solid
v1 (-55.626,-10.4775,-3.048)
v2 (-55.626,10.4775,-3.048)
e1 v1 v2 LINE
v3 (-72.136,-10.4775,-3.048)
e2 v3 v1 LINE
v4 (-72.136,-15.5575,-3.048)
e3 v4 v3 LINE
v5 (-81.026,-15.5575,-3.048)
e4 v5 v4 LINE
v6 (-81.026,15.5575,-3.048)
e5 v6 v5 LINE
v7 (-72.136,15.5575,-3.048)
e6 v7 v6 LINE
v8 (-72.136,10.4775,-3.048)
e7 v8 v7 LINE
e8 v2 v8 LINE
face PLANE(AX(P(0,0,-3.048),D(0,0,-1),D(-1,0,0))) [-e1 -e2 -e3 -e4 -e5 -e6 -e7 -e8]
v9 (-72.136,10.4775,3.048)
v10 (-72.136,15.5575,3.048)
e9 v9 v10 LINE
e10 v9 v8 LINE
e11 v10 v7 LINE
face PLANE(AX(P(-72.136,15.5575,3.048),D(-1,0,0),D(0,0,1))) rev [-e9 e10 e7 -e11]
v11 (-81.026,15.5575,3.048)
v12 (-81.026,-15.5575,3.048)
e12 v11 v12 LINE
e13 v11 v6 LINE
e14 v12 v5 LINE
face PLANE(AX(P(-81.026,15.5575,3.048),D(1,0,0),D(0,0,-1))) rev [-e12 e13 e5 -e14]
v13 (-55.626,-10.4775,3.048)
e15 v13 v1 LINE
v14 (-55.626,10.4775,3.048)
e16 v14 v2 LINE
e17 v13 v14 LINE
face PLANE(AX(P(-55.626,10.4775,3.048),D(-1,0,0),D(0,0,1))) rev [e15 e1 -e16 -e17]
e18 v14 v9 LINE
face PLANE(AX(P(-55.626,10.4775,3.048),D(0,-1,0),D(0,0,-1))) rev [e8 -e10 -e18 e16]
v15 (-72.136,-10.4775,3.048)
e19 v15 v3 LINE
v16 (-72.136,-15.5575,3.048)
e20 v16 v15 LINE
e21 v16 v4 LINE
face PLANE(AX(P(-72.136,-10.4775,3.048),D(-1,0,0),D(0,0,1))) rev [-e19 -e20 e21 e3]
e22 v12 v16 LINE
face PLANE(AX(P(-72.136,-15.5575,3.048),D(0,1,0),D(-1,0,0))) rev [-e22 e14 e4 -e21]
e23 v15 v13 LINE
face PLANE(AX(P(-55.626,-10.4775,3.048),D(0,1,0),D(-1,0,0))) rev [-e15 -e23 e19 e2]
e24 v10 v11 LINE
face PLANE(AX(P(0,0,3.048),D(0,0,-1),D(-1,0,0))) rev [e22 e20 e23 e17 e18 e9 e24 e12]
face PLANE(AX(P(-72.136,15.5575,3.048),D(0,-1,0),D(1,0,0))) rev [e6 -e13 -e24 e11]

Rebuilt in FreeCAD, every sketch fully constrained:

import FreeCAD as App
import Part
import Sketcher
Q = App.Units.Quantity

doc = App.newDocument("Part")
body = doc.addObject("PartDesign::Body", "Body")

# Sketch on XY plane
sketch1 = body.newObject("Sketcher::SketchObject", "Sketch")
sketch1.AttachmentSupport = (doc.getObject("XY_Plane"), [""])
sketch1.MapMode = "FlatFace"
sketch1.addGeometry([
    Part.LineSegment(App.Vector(-56, 10, 0), App.Vector(-72, 10, 0)),  # 0
    Part.LineSegment(App.Vector(-72, 10, 0), App.Vector(-72, 16, 0)),  # 1
    Part.LineSegment(App.Vector(-72, 16, 0), App.Vector(-81, 16, 0)),  # 2
    Part.LineSegment(App.Vector(-81, 16, 0), App.Vector(-81, -16, 0)),  # 3
    Part.LineSegment(App.Vector(-81, -16, 0), App.Vector(-72, -16, 0)),  # 4
    Part.LineSegment(App.Vector(-72, -16, 0), App.Vector(-72, -10, 0)),  # 5
    Part.LineSegment(App.Vector(-72, -10, 0), App.Vector(-56, -10, 0)),  # 6
    Part.LineSegment(App.Vector(-56, -10, 0), App.Vector(-56, 10, 0)),  # 7
], False)
sketch1.addConstraint([
    Sketcher.Constraint("Coincident", 0, 2, 1, 1),
    Sketcher.Constraint("Coincident", 1, 2, 2, 1),
    Sketcher.Constraint("Coincident", 2, 2, 3, 1),
    Sketcher.Constraint("Coincident", 3, 2, 4, 1),
    Sketcher.Constraint("Coincident", 4, 2, 5, 1),
    Sketcher.Constraint("Coincident", 5, 2, 6, 1),
    Sketcher.Constraint("Coincident", 6, 2, 7, 1),
    Sketcher.Constraint("Coincident", 7, 2, 0, 1),
    Sketcher.Constraint("Horizontal", 0),
    Sketcher.Constraint("Vertical", 1),
    Sketcher.Constraint("Horizontal", 2),
    Sketcher.Constraint("Vertical", 3),
    Sketcher.Constraint("Horizontal", 4),
    Sketcher.Constraint("Vertical", 5),
    Sketcher.Constraint("Horizontal", 6),
    Sketcher.Constraint("Vertical", 7),
    Sketcher.Constraint("Symmetric", 1, 2, 4, 2, -1),
    Sketcher.Constraint("Equal", 1, 5),
    Sketcher.Constraint("DistanceY", 1, 1, 1, 2, Q("0.2 in")),
    Sketcher.Constraint("DistanceX", 3, 2, 6, 2, Q("1 in")),
    Sketcher.Constraint("DistanceX", 0, 2, 0, 1, Q("0.65 in")),
    Sketcher.Constraint("DistanceY", 3, 2, 3, 1, Q("1.225 in")),
    Sketcher.Constraint("DistanceX", 0, 2, -1, 1, Q("2.84 in")),
])
pad1 = body.newObject("PartDesign::Pad", "Pad")
pad1.Profile = sketch1
pad1.Length = Q("0.24 in")
pad1.Midplane = True

doc.recompute()
